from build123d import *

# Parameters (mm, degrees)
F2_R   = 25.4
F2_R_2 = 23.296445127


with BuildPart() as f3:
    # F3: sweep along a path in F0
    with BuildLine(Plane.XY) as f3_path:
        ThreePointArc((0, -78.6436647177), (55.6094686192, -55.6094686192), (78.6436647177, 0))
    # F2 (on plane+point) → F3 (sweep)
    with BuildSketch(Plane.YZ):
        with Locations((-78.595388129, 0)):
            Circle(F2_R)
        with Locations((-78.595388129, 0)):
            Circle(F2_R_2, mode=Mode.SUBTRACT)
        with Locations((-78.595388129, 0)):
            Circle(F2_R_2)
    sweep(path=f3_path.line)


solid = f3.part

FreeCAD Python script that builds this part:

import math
import FreeCAD as App
import Part
import Sketcher

V = App.Vector
Q = App.Units.Quantity

doc = App.newDocument("Part")
body = doc.addObject("PartDesign::Body", "Body")

# Sketch on YZ plane
sketch1 = doc.addObject("Sketcher::SketchObject", "Sketch")
body.addObject(sketch1)
sketch1.AttachmentSupport = (doc.YZ_Plane, [""])
sketch1.MapMode = "FlatFace"
sketch1.addGeometry(Part.Circle(V(-78.595388, 0, 0), V(0, 0, 1), 25.4), False)
sketch1.addConstraint([
    Sketcher.Constraint("PointOnObject", 0, 3, -1),
    Sketcher.Constraint("Diameter", 0, Q("2 in")),
    Sketcher.Constraint("DistanceX", 0, 3, -1, 1, Q("78.595388 mm")),
])

# Sketch on XY plane
sketch2 = doc.addObject("Sketcher::SketchObject", "Sketch001")
body.addObject(sketch2)
sketch2.AttachmentSupport = (doc.XY_Plane, [""])
sketch2.MapMode = "FlatFace"
sketch2.addGeometry(Part.ArcOfCircle(Part.Circle(V(0, 0, 0), V(0, 0, 1), 78.643665), math.radians(-90), math.radians(0)), False)
sketch2.addConstraint([
    Sketcher.Constraint("Coincident", 0, 3, -1, 1),
    Sketcher.Constraint("PointOnObject", 0, 1, -2),
    Sketcher.Constraint("PointOnObject", 0, 2, -1),
    Sketcher.Constraint("Radius", 0, Q("78.643665 mm")),
])
doc.recompute()

additivepipe = doc.addObject("PartDesign::AdditivePipe", "AdditivePipe")
body.addObject(additivepipe)
additivepipe.Profile = sketch1
additivepipe.Spine = (sketch2, ["Edge1"])

doc.recompute()
